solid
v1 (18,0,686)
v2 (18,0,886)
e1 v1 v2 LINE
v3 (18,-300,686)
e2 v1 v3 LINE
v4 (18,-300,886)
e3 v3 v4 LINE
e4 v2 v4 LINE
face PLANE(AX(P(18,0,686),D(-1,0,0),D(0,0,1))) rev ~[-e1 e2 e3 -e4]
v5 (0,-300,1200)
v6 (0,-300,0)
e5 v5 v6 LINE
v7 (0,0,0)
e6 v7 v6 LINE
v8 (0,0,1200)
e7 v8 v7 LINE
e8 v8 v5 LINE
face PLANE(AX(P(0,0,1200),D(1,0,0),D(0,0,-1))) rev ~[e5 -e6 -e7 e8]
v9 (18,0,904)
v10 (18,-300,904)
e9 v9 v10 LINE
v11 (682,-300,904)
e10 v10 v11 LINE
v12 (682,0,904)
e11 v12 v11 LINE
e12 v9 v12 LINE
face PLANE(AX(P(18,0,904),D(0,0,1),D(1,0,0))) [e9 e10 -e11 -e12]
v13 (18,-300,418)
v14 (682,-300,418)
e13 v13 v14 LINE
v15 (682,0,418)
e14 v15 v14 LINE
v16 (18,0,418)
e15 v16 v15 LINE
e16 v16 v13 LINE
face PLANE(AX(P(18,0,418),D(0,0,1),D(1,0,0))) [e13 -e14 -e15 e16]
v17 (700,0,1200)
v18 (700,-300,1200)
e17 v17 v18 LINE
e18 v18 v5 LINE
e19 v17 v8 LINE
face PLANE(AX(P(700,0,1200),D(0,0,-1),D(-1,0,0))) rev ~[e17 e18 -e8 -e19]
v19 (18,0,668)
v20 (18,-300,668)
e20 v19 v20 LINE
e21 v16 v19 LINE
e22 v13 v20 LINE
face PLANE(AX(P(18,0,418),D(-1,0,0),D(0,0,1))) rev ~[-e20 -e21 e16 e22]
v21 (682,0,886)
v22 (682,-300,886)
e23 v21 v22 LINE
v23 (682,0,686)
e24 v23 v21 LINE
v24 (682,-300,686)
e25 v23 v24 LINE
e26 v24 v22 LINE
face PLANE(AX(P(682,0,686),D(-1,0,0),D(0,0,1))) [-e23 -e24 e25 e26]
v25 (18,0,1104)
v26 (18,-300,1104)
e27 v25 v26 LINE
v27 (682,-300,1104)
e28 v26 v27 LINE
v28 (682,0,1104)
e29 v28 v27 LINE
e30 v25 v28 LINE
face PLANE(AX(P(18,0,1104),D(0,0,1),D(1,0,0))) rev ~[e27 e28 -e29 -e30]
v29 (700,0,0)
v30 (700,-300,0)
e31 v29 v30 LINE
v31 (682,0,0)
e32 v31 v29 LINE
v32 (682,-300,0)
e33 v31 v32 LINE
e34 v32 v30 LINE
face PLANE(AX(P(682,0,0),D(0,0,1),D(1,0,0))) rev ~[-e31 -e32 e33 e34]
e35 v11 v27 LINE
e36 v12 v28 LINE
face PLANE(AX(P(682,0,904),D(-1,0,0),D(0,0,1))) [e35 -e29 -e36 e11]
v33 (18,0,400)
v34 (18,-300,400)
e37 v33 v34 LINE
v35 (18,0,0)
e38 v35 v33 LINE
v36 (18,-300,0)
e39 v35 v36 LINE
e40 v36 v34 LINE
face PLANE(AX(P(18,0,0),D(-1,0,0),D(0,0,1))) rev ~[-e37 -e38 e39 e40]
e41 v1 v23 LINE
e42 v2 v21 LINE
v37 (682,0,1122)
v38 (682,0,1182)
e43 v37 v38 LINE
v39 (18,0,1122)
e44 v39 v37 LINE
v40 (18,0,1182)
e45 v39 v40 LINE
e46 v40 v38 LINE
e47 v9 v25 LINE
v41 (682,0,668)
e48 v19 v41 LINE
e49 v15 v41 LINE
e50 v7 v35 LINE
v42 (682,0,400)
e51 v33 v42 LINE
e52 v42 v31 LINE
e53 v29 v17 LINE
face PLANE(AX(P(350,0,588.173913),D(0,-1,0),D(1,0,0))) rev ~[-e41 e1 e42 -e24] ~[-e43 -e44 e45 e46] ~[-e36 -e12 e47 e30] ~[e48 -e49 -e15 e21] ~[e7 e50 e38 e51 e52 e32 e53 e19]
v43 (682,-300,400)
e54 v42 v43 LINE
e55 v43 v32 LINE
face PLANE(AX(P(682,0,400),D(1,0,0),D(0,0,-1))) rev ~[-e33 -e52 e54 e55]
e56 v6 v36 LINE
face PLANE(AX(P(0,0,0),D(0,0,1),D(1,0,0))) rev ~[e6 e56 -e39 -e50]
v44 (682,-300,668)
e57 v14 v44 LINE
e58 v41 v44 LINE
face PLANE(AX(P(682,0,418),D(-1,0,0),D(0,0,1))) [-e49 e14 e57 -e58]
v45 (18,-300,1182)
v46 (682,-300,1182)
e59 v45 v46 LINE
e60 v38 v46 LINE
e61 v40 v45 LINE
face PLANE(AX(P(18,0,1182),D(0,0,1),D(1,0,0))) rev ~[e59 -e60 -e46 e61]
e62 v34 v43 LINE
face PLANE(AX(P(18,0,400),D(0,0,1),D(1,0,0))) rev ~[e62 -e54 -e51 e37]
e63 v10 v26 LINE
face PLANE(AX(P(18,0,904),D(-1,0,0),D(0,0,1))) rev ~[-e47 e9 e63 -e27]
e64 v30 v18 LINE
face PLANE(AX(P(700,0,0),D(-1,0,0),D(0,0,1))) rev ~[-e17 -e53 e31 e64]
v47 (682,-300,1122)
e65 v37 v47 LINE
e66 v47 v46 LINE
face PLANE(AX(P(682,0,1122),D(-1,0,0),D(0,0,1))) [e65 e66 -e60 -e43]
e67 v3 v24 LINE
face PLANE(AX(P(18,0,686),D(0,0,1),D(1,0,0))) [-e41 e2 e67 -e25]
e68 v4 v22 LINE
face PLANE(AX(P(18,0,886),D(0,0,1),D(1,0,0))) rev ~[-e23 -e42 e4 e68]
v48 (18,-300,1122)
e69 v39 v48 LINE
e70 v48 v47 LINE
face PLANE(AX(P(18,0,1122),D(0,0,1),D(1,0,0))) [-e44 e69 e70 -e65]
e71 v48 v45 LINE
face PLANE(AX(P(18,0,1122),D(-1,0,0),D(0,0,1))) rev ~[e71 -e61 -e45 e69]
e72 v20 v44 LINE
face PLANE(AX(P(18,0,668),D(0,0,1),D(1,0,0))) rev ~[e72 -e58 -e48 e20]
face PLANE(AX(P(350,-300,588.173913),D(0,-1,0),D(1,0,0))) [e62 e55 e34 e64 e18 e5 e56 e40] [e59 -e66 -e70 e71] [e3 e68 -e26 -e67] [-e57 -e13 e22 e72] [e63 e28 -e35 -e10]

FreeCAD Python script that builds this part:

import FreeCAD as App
import Part
import Sketcher

V = App.Vector
Q = App.Units.Quantity

doc = App.newDocument("Part")
body = doc.addObject("PartDesign::Body", "Body")

# Sketch on XZ plane
sketch1 = body.newObject("Sketcher::SketchObject", "Sketch")
sketch1.AttachmentSupport = (doc.getObject("XZ_Plane"), [""])
sketch1.MapMode = "FlatFace"
sketch1.addGeometry(Part.LineSegment(V(0, 1200, 0), V(0, 0, 0)), False)
sketch1.addGeometry(Part.LineSegment(V(0, 0, 0), V(18, 0, 0)), False)
sketch1.addGeometry(Part.LineSegment(V(18, 0, 0), V(18, 400, 0)), False)
sketch1.addGeometry(Part.LineSegment(V(18, 400, 0), V(682, 400, 0)), False)
sketch1.addGeometry(Part.LineSegment(V(682, 400, 0), V(682, 0, 0)), False)
sketch1.addGeometry(Part.LineSegment(V(682, 0, 0), V(700, 0, 0)), False)
sketch1.addGeometry(Part.LineSegment(V(700, 0, 0), V(700, 1200, 0)), False)
sketch1.addGeometry(Part.LineSegment(V(700, 1200, 0), V(0, 1200, 0)), False)
sketch1.addGeometry(Part.LineSegment(V(682, 418, 0), V(18, 418, 0)), False)
sketch1.addGeometry(Part.LineSegment(V(18, 418, 0), V(18, 668, 0)), False)
sketch1.addGeometry(Part.LineSegment(V(18, 668, 0), V(682, 668, 0)), False)
sketch1.addGeometry(Part.LineSegment(V(682, 668, 0), V(682, 418, 0)), False)
sketch1.addGeometry(Part.LineSegment(V(682, 686, 0), V(18, 686, 0)), False)
sketch1.addGeometry(Part.LineSegment(V(18, 686, 0), V(18, 886, 0)), False)
sketch1.addGeometry(Part.LineSegment(V(18, 886, 0), V(682, 886, 0)), False)
sketch1.addGeometry(Part.LineSegment(V(682, 886, 0), V(682, 686, 0)), False)
sketch1.addGeometry(Part.LineSegment(V(682, 904, 0), V(18, 904, 0)), False)
sketch1.addGeometry(Part.LineSegment(V(18, 904, 0), V(18, 1104, 0)), False)
sketch1.addGeometry(Part.LineSegment(V(18, 1104, 0), V(682, 1104, 0)), False)
sketch1.addGeometry(Part.LineSegment(V(682, 1104, 0), V(682, 904, 0)), False)
sketch1.addGeometry(Part.LineSegment(V(682, 1122, 0), V(18, 1122, 0)), False)
sketch1.addGeometry(Part.LineSegment(V(18, 1122, 0), V(18, 1182, 0)), False)
sketch1.addGeometry(Part.LineSegment(V(18, 1182, 0), V(682, 1182, 0)), False)
sketch1.addGeometry(Part.LineSegment(V(682, 1182, 0), V(682, 1122, 0)), False)
sketch1.addConstraint(Sketcher.Constraint("Coincident", 0, 2, 1, 1))
sketch1.addConstraint(Sketcher.Constraint("Coincident", 1, 2, 2, 1))
sketch1.addConstraint(Sketcher.Constraint("Coincident", 2, 2, 3, 1))
sketch1.addConstraint(Sketcher.Constraint("Coincident", 3, 2, 4, 1))
sketch1.addConstraint(Sketcher.Constraint("Coincident", 4, 2, 5, 1))
sketch1.addConstraint(Sketcher.Constraint("Coincident", 5, 2, 6, 1))
sketch1.addConstraint(Sketcher.Constraint("Coincident", 6, 2, 7, 1))
sketch1.addConstraint(Sketcher.Constraint("Coincident", 7, 2, 0, 1))
sketch1.addConstraint(Sketcher.Constraint("Coincident", 8, 2, 9, 1))
sketch1.addConstraint(Sketcher.Constraint("Coincident", 9, 2, 10, 1))
sketch1.addConstraint(Sketcher.Constraint("Coincident", 10, 2, 11, 1))
sketch1.addConstraint(Sketcher.Constraint("Coincident", 11, 2, 8, 1))
sketch1.addConstraint(Sketcher.Constraint("Coincident", 12, 2, 13, 1))
sketch1.addConstraint(Sketcher.Constraint("Coincident", 13, 2, 14, 1))
sketch1.addConstraint(Sketcher.Constraint("Coincident", 14, 2, 15, 1))
sketch1.addConstraint(Sketcher.Constraint("Coincident", 15, 2, 12, 1))
sketch1.addConstraint(Sketcher.Constraint("Coincident", 16, 2, 17, 1))
sketch1.addConstraint(Sketcher.Constraint("Coincident", 17, 2, 18, 1))
sketch1.addConstraint(Sketcher.Constraint("Coincident", 18, 2, 19, 1))
sketch1.addConstraint(Sketcher.Constraint("Coincident", 19, 2, 16, 1))
sketch1.addConstraint(Sketcher.Constraint("Coincident", 20, 2, 21, 1))
sketch1.addConstraint(Sketcher.Constraint("Coincident", 21, 2, 22, 1))
sketch1.addConstraint(Sketcher.Constraint("Coincident", 22, 2, 23, 1))
sketch1.addConstraint(Sketcher.Constraint("Coincident", 23, 2, 20, 1))
sketch1.addConstraint(Sketcher.Constraint("Vertical", 0))
sketch1.addConstraint(Sketcher.Constraint("Horizontal", 1))
sketch1.addConstraint(Sketcher.Constraint("Vertical", 2))
sketch1.addConstraint(Sketcher.Constraint("Horizontal", 3))
sketch1.addConstraint(Sketcher.Constraint("Vertical", 4))
sketch1.addConstraint(Sketcher.Constraint("Horizontal", 5))
sketch1.addConstraint(Sketcher.Constraint("Vertical", 6))
sketch1.addConstraint(Sketcher.Constraint("Horizontal", 7))
sketch1.addConstraint(Sketcher.Constraint("Horizontal", 8))
sketch1.addConstraint(Sketcher.Constraint("Vertical", 9))
sketch1.addConstraint(Sketcher.Constraint("Horizontal", 10))
sketch1.addConstraint(Sketcher.Constraint("Vertical", 11))
sketch1.addConstraint(Sketcher.Constraint("Horizontal", 12))
sketch1.addConstraint(Sketcher.Constraint("Vertical", 13))
sketch1.addConstraint(Sketcher.Constraint("Horizontal", 14))
sketch1.addConstraint(Sketcher.Constraint("Vertical", 15))
sketch1.addConstraint(Sketcher.Constraint("Horizontal", 16))
sketch1.addConstraint(Sketcher.Constraint("Vertical", 17))
sketch1.addConstraint(Sketcher.Constraint("Horizontal", 18))
sketch1.addConstraint(Sketcher.Constraint("Vertical", 19))
sketch1.addConstraint(Sketcher.Constraint("Horizontal", 20))
sketch1.addConstraint(Sketcher.Constraint("Vertical", 21))
sketch1.addConstraint(Sketcher.Constraint("Horizontal", 22))
sketch1.addConstraint(Sketcher.Constraint("Vertical", 23))
sketch1.addConstraint(Sketcher.Constraint("Coincident", 0, 2, -1, 1))
sketch1.addConstraint(Sketcher.Constraint("PointOnObject", 4, 2, -1))
sketch1.addConstraint(Sketcher.Constraint("Vertical", 2, 2, 8, 2))
sketch1.addConstraint(Sketcher.Constraint("Vertical", 4, 2, 10, 2))
sketch1.addConstraint(Sketcher.Constraint("Vertical", 9, 2, 12, 2))
sketch1.addConstraint(Sketcher.Constraint("Vertical", 11, 2, 14, 2))
sketch1.addConstraint(Sketcher.Constraint("Vertical", 13, 2, 16, 2))
sketch1.addConstraint(Sketcher.Constraint("Vertical", 15, 2, 18, 2))
sketch1.addConstraint(Sketcher.Constraint("Vertical", 17, 2, 20, 2))
sketch1.addConstraint(Sketcher.Constraint("Vertical", 19, 2, 22, 2))
sketch1.addConstraint(Sketcher.Constraint("Equal", 1, 5))
sketch1.addConstraint(Sketcher.Constraint("Equal", 15, 17))
sketch1.addConstraint(Sketcher.Constraint("DistanceX", 1, 1, 1, 2, Q("18 mm")))
sketch1.addConstraint(Sketcher.Constraint("DistanceX", 3, 1, 3, 2, Q("664 mm")))
sketch1.addConstraint(Sketcher.Constraint("DistanceY", 0, 2, 0, 1, Q("1200 mm")))
sketch1.addConstraint(Sketcher.Constraint("DistanceY", 2, 1, 2, 2, Q("400 mm")))
sketch1.addConstraint(Sketcher.Constraint("DistanceY", 9, 1, 9, 2, Q("250 mm")))
sketch1.addConstraint(Sketcher.Constraint("DistanceY", 13, 1, 13, 2, Q("200 mm")))
sketch1.addConstraint(Sketcher.Constraint("DistanceY", 21, 1, 21, 2, Q("60 mm")))
sketch1.addConstraint(Sketcher.Constraint("DistanceY", -1, 1, 8, 2, Q("418 mm")))
sketch1.addConstraint(Sketcher.Constraint("DistanceY", -1, 1, 12, 2, Q("686 mm")))
sketch1.addConstraint(Sketcher.Constraint("DistanceY", -1, 1, 16, 2, Q("904 mm")))
sketch1.addConstraint(Sketcher.Constraint("DistanceY", -1, 1, 20, 2, Q("1122 mm")))
pad1 = body.newObject("PartDesign::Pad", "Pad")
pad1.Profile = sketch1
pad1.Length = 300

doc.recompute()
